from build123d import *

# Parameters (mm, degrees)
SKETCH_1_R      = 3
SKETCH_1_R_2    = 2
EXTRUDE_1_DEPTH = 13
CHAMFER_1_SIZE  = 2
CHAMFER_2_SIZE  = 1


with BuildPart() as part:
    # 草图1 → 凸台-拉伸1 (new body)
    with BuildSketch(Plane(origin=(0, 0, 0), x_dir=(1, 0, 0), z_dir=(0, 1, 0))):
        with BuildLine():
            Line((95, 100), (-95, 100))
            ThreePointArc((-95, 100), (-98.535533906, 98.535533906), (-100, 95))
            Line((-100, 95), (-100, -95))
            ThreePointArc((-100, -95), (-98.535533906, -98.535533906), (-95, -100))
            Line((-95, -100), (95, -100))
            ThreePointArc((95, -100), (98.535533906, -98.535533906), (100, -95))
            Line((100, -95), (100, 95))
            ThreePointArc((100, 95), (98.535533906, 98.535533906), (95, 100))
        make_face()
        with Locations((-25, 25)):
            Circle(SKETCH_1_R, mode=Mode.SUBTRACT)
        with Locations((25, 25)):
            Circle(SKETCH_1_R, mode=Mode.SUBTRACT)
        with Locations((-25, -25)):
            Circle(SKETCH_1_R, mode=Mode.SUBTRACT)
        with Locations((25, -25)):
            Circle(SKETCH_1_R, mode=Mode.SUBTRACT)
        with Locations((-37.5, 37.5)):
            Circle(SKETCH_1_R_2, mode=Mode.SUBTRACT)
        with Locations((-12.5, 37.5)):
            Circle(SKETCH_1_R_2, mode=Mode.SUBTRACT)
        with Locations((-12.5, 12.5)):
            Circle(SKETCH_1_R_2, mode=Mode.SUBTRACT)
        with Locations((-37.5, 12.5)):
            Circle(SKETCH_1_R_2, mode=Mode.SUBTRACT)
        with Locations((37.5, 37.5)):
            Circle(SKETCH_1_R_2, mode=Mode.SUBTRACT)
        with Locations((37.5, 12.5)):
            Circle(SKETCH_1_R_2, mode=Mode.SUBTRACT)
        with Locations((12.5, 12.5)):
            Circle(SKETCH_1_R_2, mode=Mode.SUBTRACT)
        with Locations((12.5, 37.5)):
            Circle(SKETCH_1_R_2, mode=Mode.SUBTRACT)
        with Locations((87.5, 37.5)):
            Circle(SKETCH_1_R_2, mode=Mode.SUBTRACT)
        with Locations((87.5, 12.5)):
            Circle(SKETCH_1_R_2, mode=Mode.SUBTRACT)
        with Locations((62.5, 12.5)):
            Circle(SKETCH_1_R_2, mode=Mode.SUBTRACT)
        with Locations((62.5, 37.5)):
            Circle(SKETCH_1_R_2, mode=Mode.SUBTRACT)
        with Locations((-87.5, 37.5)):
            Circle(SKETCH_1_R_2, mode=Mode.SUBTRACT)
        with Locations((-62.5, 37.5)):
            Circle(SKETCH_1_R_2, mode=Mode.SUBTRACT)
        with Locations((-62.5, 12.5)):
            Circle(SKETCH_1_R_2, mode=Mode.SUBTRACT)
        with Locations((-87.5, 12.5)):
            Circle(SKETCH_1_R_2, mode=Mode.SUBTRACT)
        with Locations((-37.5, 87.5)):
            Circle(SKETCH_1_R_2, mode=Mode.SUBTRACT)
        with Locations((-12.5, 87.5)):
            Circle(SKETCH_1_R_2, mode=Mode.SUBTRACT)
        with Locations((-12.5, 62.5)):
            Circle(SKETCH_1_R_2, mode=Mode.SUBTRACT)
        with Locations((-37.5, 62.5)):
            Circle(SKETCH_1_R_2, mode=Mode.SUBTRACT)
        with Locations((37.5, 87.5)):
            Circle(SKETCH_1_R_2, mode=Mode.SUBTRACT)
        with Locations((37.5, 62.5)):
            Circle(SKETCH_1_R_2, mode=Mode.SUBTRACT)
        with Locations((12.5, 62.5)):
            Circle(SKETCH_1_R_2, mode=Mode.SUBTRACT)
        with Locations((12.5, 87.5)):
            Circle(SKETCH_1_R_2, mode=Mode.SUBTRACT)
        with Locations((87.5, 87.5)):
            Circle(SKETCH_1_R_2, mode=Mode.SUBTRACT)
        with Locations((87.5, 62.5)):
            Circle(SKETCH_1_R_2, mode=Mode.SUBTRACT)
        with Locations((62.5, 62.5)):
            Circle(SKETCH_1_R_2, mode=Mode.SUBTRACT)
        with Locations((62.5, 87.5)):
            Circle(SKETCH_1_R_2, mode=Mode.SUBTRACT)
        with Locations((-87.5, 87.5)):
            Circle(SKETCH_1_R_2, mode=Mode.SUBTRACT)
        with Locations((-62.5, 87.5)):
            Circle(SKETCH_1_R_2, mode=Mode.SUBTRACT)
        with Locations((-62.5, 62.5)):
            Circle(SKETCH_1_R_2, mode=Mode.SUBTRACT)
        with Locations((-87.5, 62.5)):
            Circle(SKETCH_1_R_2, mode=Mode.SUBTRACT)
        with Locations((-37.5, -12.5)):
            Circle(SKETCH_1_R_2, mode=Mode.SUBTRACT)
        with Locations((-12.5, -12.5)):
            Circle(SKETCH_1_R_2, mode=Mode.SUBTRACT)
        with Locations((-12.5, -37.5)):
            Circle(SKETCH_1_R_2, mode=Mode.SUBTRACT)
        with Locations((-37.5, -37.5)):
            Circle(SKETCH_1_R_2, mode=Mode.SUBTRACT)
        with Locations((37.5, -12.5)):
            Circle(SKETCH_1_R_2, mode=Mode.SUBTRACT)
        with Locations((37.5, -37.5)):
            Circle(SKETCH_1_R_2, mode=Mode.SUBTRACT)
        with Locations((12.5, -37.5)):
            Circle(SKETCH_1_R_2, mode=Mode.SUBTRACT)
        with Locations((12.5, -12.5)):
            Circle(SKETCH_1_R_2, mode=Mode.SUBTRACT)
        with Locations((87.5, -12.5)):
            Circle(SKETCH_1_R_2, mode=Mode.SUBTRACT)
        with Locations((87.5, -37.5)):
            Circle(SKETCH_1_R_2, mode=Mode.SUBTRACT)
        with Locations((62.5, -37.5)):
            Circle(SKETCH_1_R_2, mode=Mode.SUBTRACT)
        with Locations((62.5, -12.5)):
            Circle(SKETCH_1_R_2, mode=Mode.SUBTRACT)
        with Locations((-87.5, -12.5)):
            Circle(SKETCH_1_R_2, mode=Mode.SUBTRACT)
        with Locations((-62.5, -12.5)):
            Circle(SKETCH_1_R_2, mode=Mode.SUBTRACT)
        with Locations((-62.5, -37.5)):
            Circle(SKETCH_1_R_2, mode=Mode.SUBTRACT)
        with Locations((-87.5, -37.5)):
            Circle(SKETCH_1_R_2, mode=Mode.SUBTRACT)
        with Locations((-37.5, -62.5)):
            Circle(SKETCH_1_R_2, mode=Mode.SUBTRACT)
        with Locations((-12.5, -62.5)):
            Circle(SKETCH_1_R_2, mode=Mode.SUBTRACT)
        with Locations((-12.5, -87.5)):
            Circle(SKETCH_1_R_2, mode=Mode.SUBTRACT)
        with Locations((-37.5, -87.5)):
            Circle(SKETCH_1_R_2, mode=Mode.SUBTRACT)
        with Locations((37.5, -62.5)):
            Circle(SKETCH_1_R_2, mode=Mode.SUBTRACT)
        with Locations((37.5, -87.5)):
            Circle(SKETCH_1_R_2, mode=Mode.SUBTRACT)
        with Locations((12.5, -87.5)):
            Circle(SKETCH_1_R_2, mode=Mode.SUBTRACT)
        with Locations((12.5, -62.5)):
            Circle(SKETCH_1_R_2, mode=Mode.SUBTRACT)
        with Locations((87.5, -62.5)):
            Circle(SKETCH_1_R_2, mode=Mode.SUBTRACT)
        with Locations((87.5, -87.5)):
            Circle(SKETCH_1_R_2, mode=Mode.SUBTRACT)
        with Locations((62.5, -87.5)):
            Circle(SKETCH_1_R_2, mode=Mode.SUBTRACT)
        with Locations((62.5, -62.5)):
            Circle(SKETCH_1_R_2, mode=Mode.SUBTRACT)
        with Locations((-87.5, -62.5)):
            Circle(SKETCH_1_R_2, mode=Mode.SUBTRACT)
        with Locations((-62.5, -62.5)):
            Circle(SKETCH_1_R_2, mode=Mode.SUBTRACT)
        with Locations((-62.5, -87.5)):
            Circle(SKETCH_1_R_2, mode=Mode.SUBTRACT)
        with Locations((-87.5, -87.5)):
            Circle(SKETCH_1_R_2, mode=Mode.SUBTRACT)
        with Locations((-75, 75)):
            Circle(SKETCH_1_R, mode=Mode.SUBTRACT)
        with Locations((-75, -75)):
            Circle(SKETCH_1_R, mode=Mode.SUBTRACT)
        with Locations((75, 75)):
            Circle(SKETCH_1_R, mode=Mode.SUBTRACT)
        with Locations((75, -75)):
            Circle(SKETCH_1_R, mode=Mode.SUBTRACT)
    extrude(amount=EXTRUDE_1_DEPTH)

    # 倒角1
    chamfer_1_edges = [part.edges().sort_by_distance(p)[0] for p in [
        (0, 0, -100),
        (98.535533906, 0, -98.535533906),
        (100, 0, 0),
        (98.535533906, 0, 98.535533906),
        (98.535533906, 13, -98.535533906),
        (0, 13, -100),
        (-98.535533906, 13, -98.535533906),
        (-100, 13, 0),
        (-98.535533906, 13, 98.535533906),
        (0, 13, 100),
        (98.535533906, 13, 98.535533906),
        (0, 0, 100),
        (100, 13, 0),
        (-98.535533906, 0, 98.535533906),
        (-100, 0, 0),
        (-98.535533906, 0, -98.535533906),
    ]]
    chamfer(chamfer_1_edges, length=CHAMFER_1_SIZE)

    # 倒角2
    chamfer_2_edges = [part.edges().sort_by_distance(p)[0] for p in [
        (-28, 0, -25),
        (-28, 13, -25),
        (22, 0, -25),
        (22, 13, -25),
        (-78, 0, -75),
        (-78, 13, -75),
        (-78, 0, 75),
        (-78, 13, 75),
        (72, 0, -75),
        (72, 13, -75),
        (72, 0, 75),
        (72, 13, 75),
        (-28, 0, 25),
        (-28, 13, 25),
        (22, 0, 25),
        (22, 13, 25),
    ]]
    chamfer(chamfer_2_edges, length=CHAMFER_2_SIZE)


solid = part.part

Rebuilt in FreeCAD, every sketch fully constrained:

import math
import FreeCAD as App
import Part
import Sketcher


def edges_at(feature, points):
    """Names of the edges that pass closest to the given points."""
    edges = feature.Shape.Edges
    near = lambda p: min(range(len(edges)), key=lambda i: edges[i].distToShape(Part.Vertex(*p))[0])
    return sorted({f"Edge{near(p) + 1}" for p in points})

doc = App.newDocument("Part")
body = doc.addObject("PartDesign::Body", "Body")

# Sketch on XZ plane
sketch1 = body.newObject("Sketcher::SketchObject", "Sketch")
sketch1.AttachmentSupport = (doc.getObject("XZ_Plane"), [""])
sketch1.MapMode = "FlatFace"
sketch1.addGeometry([
    Part.LineSegment(App.Vector(95, -100, 0), App.Vector(-95, -100, 0)),  # 0
    Part.ArcOfCircle(Part.Circle(App.Vector(-95, -95, 0), App.Vector(0, 0, 1), 5), math.radians(180), math.radians(270)),  # 1
    Part.LineSegment(App.Vector(-100, -95, 0), App.Vector(-100, 95, 0)),  # 2
    Part.ArcOfCircle(Part.Circle(App.Vector(-95, 95, 0), App.Vector(0, 0, 1), 5), math.radians(90), math.radians(180)),  # 3
    Part.LineSegment(App.Vector(-95, 100, 0), App.Vector(95, 100, 0)),  # 4
    Part.ArcOfCircle(Part.Circle(App.Vector(95, 95, 0), App.Vector(0, 0, 1), 5), math.radians(0), math.radians(90)),  # 5
    Part.LineSegment(App.Vector(100, 95, 0), App.Vector(100, -95, 0)),  # 6
    Part.ArcOfCircle(Part.Circle(App.Vector(95, -95, 0), App.Vector(0, 0, 1), 5), math.radians(-90), math.radians(0)),  # 7
    Part.Circle(App.Vector(-87.5, 87.5, 0), App.Vector(0, 0, 1), 2),  # 8
    Part.Circle(App.Vector(-75, 75, 0), App.Vector(0, 0, 1), 3),  # 9
    Part.Circle(App.Vector(-62.5, 87.5, 0), App.Vector(0, 0, 1), 2),  # 10
    Part.Circle(App.Vector(-87.5, 62.5, 0), App.Vector(0, 0, 1), 2),  # 11
    Part.Circle(App.Vector(-62.5, 62.5, 0), App.Vector(0, 0, 1), 2),  # 12
    Part.Circle(App.Vector(-37.5, 87.5, 0), App.Vector(0, 0, 1), 2),  # 13
    Part.Circle(App.Vector(-12.5, 87.5, 0), App.Vector(0, 0, 1), 2),  # 14
    Part.Circle(App.Vector(-37.5, 62.5, 0), App.Vector(0, 0, 1), 2),  # 15
    Part.Circle(App.Vector(-12.5, 62.5, 0), App.Vector(0, 0, 1), 2),  # 16
    Part.Circle(App.Vector(-87.5, 37.5, 0), App.Vector(0, 0, 1), 2),  # 17
    Part.Circle(App.Vector(-62.5, 37.5, 0), App.Vector(0, 0, 1), 2),  # 18
    Part.Circle(App.Vector(-87.5, 12.5, 0), App.Vector(0, 0, 1), 2),  # 19
    Part.Circle(App.Vector(-62.5, 12.5, 0), App.Vector(0, 0, 1), 2),  # 20
    Part.Circle(App.Vector(-37.5, 37.5, 0), App.Vector(0, 0, 1), 2),  # 21
    Part.Circle(App.Vector(-25, 25, 0), App.Vector(0, 0, 1), 3),  # 22
    Part.Circle(App.Vector(-12.5, 37.5, 0), App.Vector(0, 0, 1), 2),  # 23
    Part.Circle(App.Vector(-37.5, 12.5, 0), App.Vector(0, 0, 1), 2),  # 24
    Part.Circle(App.Vector(-12.5, 12.5, 0), App.Vector(0, 0, 1), 2),  # 25
    Part.Circle(App.Vector(12.5, 87.5, 0), App.Vector(0, 0, 1), 2),  # 26
    Part.Circle(App.Vector(37.5, 87.5, 0), App.Vector(0, 0, 1), 2),  # 27
    Part.Circle(App.Vector(12.5, 62.5, 0), App.Vector(0, 0, 1), 2),  # 28
    Part.Circle(App.Vector(37.5, 62.5, 0), App.Vector(0, 0, 1), 2),  # 29
    Part.Circle(App.Vector(62.5, 87.5, 0), App.Vector(0, 0, 1), 2),  # 30
    Part.Circle(App.Vector(87.5, 87.5, 0), App.Vector(0, 0, 1), 2),  # 31
    Part.Circle(App.Vector(75, 75, 0), App.Vector(0, 0, 1), 3),  # 32
    Part.Circle(App.Vector(62.5, 62.5, 0), App.Vector(0, 0, 1), 2),  # 33
    Part.Circle(App.Vector(87.5, 62.5, 0), App.Vector(0, 0, 1), 2),  # 34
    Part.Circle(App.Vector(12.5, 37.5, 0), App.Vector(0, 0, 1), 2),  # 35
    Part.Circle(App.Vector(37.5, 37.5, 0), App.Vector(0, 0, 1), 2),  # 36
    Part.Circle(App.Vector(25, 25, 0), App.Vector(0, 0, 1), 3),  # 37
    Part.Circle(App.Vector(12.5, 12.5, 0), App.Vector(0, 0, 1), 2),  # 38
    Part.Circle(App.Vector(37.5, 12.5, 0), App.Vector(0, 0, 1), 2),  # 39
    Part.Circle(App.Vector(62.5, 37.5, 0), App.Vector(0, 0, 1), 2),  # 40
    Part.Circle(App.Vector(87.5, 37.5, 0), App.Vector(0, 0, 1), 2),  # 41
    Part.Circle(App.Vector(62.5, 12.5, 0), App.Vector(0, 0, 1), 2),  # 42
    Part.Circle(App.Vector(87.5, 12.5, 0), App.Vector(0, 0, 1), 2),  # 43
    Part.Circle(App.Vector(-87.5, -12.5, 0), App.Vector(0, 0, 1), 2),  # 44
    Part.Circle(App.Vector(-62.5, -12.5, 0), App.Vector(0, 0, 1), 2),  # 45
    Part.Circle(App.Vector(-87.5, -37.5, 0), App.Vector(0, 0, 1), 2),  # 46
    Part.Circle(App.Vector(-62.5, -37.5, 0), App.Vector(0, 0, 1), 2),  # 47
    Part.Circle(App.Vector(-37.5, -12.5, 0), App.Vector(0, 0, 1), 2),  # 48
    Part.Circle(App.Vector(-12.5, -12.5, 0), App.Vector(0, 0, 1), 2),  # 49
    Part.Circle(App.Vector(-25, -25, 0), App.Vector(0, 0, 1), 3),  # 50
    Part.Circle(App.Vector(-37.5, -37.5, 0), App.Vector(0, 0, 1), 2),  # 51
    Part.Circle(App.Vector(-12.5, -37.5, 0), App.Vector(0, 0, 1), 2),  # 52
    Part.Circle(App.Vector(-87.5, -62.5, 0), App.Vector(0, 0, 1), 2),  # 53
    Part.Circle(App.Vector(-62.5, -62.5, 0), App.Vector(0, 0, 1), 2),  # 54
    Part.Circle(App.Vector(-75, -75, 0), App.Vector(0, 0, 1), 3),  # 55
    Part.Circle(App.Vector(-87.5, -87.5, 0), App.Vector(0, 0, 1), 2),  # 56
    Part.Circle(App.Vector(-62.5, -87.5, 0), App.Vector(0, 0, 1), 2),  # 57
    Part.Circle(App.Vector(-37.5, -62.5, 0), App.Vector(0, 0, 1), 2),  # 58
    Part.Circle(App.Vector(-12.5, -62.5, 0), App.Vector(0, 0, 1), 2),  # 59
    Part.Circle(App.Vector(-37.5, -87.5, 0), App.Vector(0, 0, 1), 2),  # 60
    Part.Circle(App.Vector(-12.5, -87.5, 0), App.Vector(0, 0, 1), 2),  # 61
    Part.Circle(App.Vector(12.5, -12.5, 0), App.Vector(0, 0, 1), 2),  # 62
    Part.Circle(App.Vector(37.5, -12.5, 0), App.Vector(0, 0, 1), 2),  # 63
    Part.Circle(App.Vector(12.5, -37.5, 0), App.Vector(0, 0, 1), 2),  # 64
    Part.Circle(App.Vector(25, -25, 0), App.Vector(0, 0, 1), 3),  # 65
    Part.Circle(App.Vector(37.5, -37.5, 0), App.Vector(0, 0, 1), 2),  # 66
    Part.Circle(App.Vector(62.5, -12.5, 0), App.Vector(0, 0, 1), 2),  # 67
    Part.Circle(App.Vector(87.5, -12.5, 0), App.Vector(0, 0, 1), 2),  # 68
    Part.Circle(App.Vector(62.5, -37.5, 0), App.Vector(0, 0, 1), 2),  # 69
    Part.Circle(App.Vector(87.5, -37.5, 0), App.Vector(0, 0, 1), 2),  # 70
    Part.Circle(App.Vector(12.5, -62.5, 0), App.Vector(0, 0, 1), 2),  # 71
    Part.Circle(App.Vector(37.5, -62.5, 0), App.Vector(0, 0, 1), 2),  # 72
    Part.Circle(App.Vector(12.5, -87.5, 0), App.Vector(0, 0, 1), 2),  # 73
    Part.Circle(App.Vector(37.5, -87.5, 0), App.Vector(0, 0, 1), 2),  # 74
    Part.Circle(App.Vector(62.5, -62.5, 0), App.Vector(0, 0, 1), 2),  # 75
    Part.Circle(App.Vector(87.5, -62.5, 0), App.Vector(0, 0, 1), 2),  # 76
    Part.Circle(App.Vector(62.5, -87.5, 0), App.Vector(0, 0, 1), 2),  # 77
    Part.Circle(App.Vector(75, -75, 0), App.Vector(0, 0, 1), 3),  # 78
    Part.Circle(App.Vector(87.5, -87.5, 0), App.Vector(0, 0, 1), 2),  # 79
], False)
sketch1.addConstraint([
    Sketcher.Constraint("Tangent", 0, 2, 1, 2),
    Sketcher.Constraint("Tangent", 1, 1, 2, 1),
    Sketcher.Constraint("Tangent", 2, 2, 3, 2),
    Sketcher.Constraint("Tangent", 3, 1, 4, 1),
    Sketcher.Constraint("Tangent", 4, 2, 5, 2),
    Sketcher.Constraint("Tangent", 5, 1, 6, 1),
    Sketcher.Constraint("Tangent", 6, 2, 7, 2),
    Sketcher.Constraint("Tangent", 7, 1, 0, 1),
    Sketcher.Constraint("Horizontal", 0),
    Sketcher.Constraint("Vertical", 2),
    Sketcher.Constraint("Horizontal", 4),
    Sketcher.Constraint("Vertical", 6),
    Sketcher.Constraint("Equal", 1, 3),
    Sketcher.Constraint("Equal", 3, 5),
    Sketcher.Constraint("Equal", 5, 7),
    Sketcher.Constraint("Equal", 8, 10),
    Sketcher.Constraint("Equal", 10, 11),
    Sketcher.Constraint("Equal", 11, 12),
    Sketcher.Constraint("Equal", 12, 13),
    Sketcher.Constraint("Equal", 13, 14),
    Sketcher.Constraint("Equal", 14, 15),
    Sketcher.Constraint("Equal", 15, 16),
    Sketcher.Constraint("Equal", 16, 17),
    Sketcher.Constraint("Equal", 17, 18),
    Sketcher.Constraint("Equal", 18, 19),
    Sketcher.Constraint("Equal", 19, 20),
    Sketcher.Constraint("Equal", 20, 21),
    Sketcher.Constraint("Equal", 9, 22),
    Sketcher.Constraint("Equal", 21, 23),
    Sketcher.Constraint("Equal", 23, 24),
    Sketcher.Constraint("Equal", 24, 25),
    Sketcher.Constraint("Equal", 25, 26),
    Sketcher.Constraint("Equal", 26, 27),
    Sketcher.Constraint("Equal", 27, 28),
    Sketcher.Constraint("Equal", 28, 29),
    Sketcher.Constraint("Equal", 29, 30),
    Sketcher.Constraint("Equal", 30, 31),
    Sketcher.Constraint("Equal", 22, 32),
    Sketcher.Constraint("Equal", 31, 33),
    Sketcher.Constraint("Equal", 33, 34),
    Sketcher.Constraint("Equal", 34, 35),
    Sketcher.Constraint("Equal", 35, 36),
    Sketcher.Constraint("Equal", 32, 37),
    Sketcher.Constraint("Equal", 36, 38),
    Sketcher.Constraint("Equal", 38, 39),
    Sketcher.Constraint("Equal", 39, 40),
    Sketcher.Constraint("Equal", 40, 41),
    Sketcher.Constraint("Equal", 41, 42),
    Sketcher.Constraint("Equal", 42, 43),
    Sketcher.Constraint("Equal", 43, 44),
    Sketcher.Constraint("Equal", 44, 45),
    Sketcher.Constraint("Equal", 45, 46),
    Sketcher.Constraint("Equal", 46, 47),
    Sketcher.Constraint("Equal", 47, 48),
    Sketcher.Constraint("Equal", 48, 49),
    Sketcher.Constraint("Equal", 37, 50),
    Sketcher.Constraint("Equal", 49, 51),
    Sketcher.Constraint("Equal", 51, 52),
    Sketcher.Constraint("Equal", 52, 53),
    Sketcher.Constraint("Equal", 53, 54),
    Sketcher.Constraint("Equal", 50, 55),
    Sketcher.Constraint("Equal", 54, 56),
    Sketcher.Constraint("Equal", 56, 57),
    Sketcher.Constraint("Equal", 57, 58),
    Sketcher.Constraint("Equal", 58, 59),
    Sketcher.Constraint("Equal", 59, 60),
    Sketcher.Constraint("Equal", 60, 61),
    Sketcher.Constraint("Equal", 61, 62),
    Sketcher.Constraint("Equal", 62, 63),
    Sketcher.Constraint("Equal", 63, 64),
    Sketcher.Constraint("Equal", 55, 65),
    Sketcher.Constraint("Equal", 64, 66),
    Sketcher.Constraint("Equal", 66, 67),
    Sketcher.Constraint("Equal", 67, 68),
    Sketcher.Constraint("Equal", 68, 69),
    Sketcher.Constraint("Equal", 69, 70),
    Sketcher.Constraint("Equal", 70, 71),
    Sketcher.Constraint("Equal", 71, 72),
    Sketcher.Constraint("Equal", 72, 73),
    Sketcher.Constraint("Equal", 73, 74),
    Sketcher.Constraint("Equal", 74, 75),
    Sketcher.Constraint("Equal", 75, 76),
    Sketcher.Constraint("Equal", 76, 77),
    Sketcher.Constraint("Equal", 65, 78),
    Sketcher.Constraint("Equal", 77, 79),
    Sketcher.Constraint("Symmetric", 1, 3, 5, 3, -1, 1),
    Sketcher.Constraint("Symmetric", 43, 3, 44, 3, -1, 1),
    Sketcher.Constraint("Symmetric", 42, 3, 45, 3, -1, 1),
    Sketcher.Constraint("Symmetric", 41, 3, 46, 3, -1, 1),
    Sketcher.Constraint("Symmetric", 40, 3, 47, 3, -1, 1),
    Sketcher.Constraint("Symmetric", 39, 3, 48, 3, -1, 1),
    Sketcher.Constraint("Symmetric", 38, 3, 49, 3, -1, 1),
    Sketcher.Constraint("Symmetric", 37, 3, 50, 3, -1, 1),
    Sketcher.Constraint("Symmetric", 36, 3, 51, 3, -1, 1),
    Sketcher.Constraint("Symmetric", 35, 3, 52, 3, -1, 1),
    Sketcher.Constraint("Symmetric", 34, 3, 53, 3, -1, 1),
    Sketcher.Constraint("Symmetric", 33, 3, 54, 3, -1, 1),
    Sketcher.Constraint("Symmetric", 32, 3, 55, 3, -1, 1),
    Sketcher.Constraint("Symmetric", 31, 3, 56, 3, -1, 1),
    Sketcher.Constraint("Symmetric", 30, 3, 57, 3, -1, 1),
    Sketcher.Constraint("Symmetric", 29, 3, 58, 3, -1, 1),
    Sketcher.Constraint("Symmetric", 28, 3, 59, 3, -1, 1),
    Sketcher.Constraint("Symmetric", 27, 3, 60, 3, -1, 1),
    Sketcher.Constraint("Symmetric", 26, 3, 61, 3, -1, 1),
    Sketcher.Constraint("Symmetric", 25, 3, 62, 3, -1, 1),
    Sketcher.Constraint("Symmetric", 24, 3, 63, 3, -1, 1),
    Sketcher.Constraint("Symmetric", 23, 3, 64, 3, -1, 1),
    Sketcher.Constraint("Symmetric", 22, 3, 65, 3, -1, 1),
    Sketcher.Constraint("Symmetric", 21, 3, 66, 3, -1, 1),
    Sketcher.Constraint("Symmetric", 20, 3, 67, 3, -1, 1),
    Sketcher.Constraint("Symmetric", 19, 3, 68, 3, -1, 1),
    Sketcher.Constraint("Symmetric", 18, 3, 69, 3, -1, 1),
    Sketcher.Constraint("Symmetric", 17, 3, 70, 3, -1, 1),
    Sketcher.Constraint("Symmetric", 16, 3, 71, 3, -1, 1),
    Sketcher.Constraint("Symmetric", 15, 3, 72, 3, -1, 1),
    Sketcher.Constraint("Symmetric", 14, 3, 73, 3, -1, 1),
    Sketcher.Constraint("Symmetric", 13, 3, 74, 3, -1, 1),
    Sketcher.Constraint("Symmetric", 12, 3, 75, 3, -1, 1),
    Sketcher.Constraint("Symmetric", 11, 3, 76, 3, -1, 1),
    Sketcher.Constraint("Symmetric", 10, 3, 77, 3, -1, 1),
    Sketcher.Constraint("Symmetric", 9, 3, 78, 3, -1, 1),
    Sketcher.Constraint("Symmetric", 8, 3, 79, 3, -1, 1),
    Sketcher.Constraint("Symmetric", 14, 3, 26, 3, -2),
    Sketcher.Constraint("Symmetric", 13, 3, 27, 3, -2),
    Sketcher.Constraint("Symmetric", 16, 3, 28, 3, -2),
    Sketcher.Constraint("Symmetric", 15, 3, 29, 3, -2),
    Sketcher.Constraint("Symmetric", 10, 3, 30, 3, -2),
    Sketcher.Constraint("Symmetric", 8, 3, 31, 3, -2),
    Sketcher.Constraint("Symmetric", 9, 3, 32, 3, -2),
    Sketcher.Constraint("Symmetric", 12, 3, 33, 3, -2),
    Sketcher.Constraint("Symmetric", 11, 3, 34, 3, -2),
    Sketcher.Constraint("Symmetric", 23, 3, 35, 3, -2),
    Sketcher.Constraint("Symmetric", 21, 3, 36, 3, -2),
    Sketcher.Constraint("Symmetric", 22, 3, 37, 3, -2),
    Sketcher.Constraint("Symmetric", 25, 3, 38, 3, -2),
    Sketcher.Constraint("Symmetric", 24, 3, 39, 3, -2),
    Sketcher.Constraint("Symmetric", 18, 3, 40, 3, -2),
    Sketcher.Constraint("Symmetric", 17, 3, 41, 3, -2),
    Sketcher.Constraint("Symmetric", 20, 3, 42, 3, -2),
    Sketcher.Constraint("Symmetric", 19, 3, 43, 3, -2),
    Sketcher.Constraint("Horizontal", 8, 3, 10, 3),
    Sketcher.Constraint("Horizontal", 11, 3, 12, 3),
    Sketcher.Constraint("Horizontal", 10, 3, 13, 3),
    Sketcher.Constraint("Horizontal", 13, 3, 14, 3),
    Sketcher.Constraint("Horizontal", 12, 3, 15, 3),
    Sketcher.Constraint("Horizontal", 15, 3, 16, 3),
    Sketcher.Constraint("Horizontal", 17, 3, 18, 3),
    Sketcher.Constraint("Horizontal", 19, 3, 20, 3),
    Sketcher.Constraint("Horizontal", 18, 3, 21, 3),
    Sketcher.Constraint("Horizontal", 21, 3, 23, 3),
    Sketcher.Constraint("Horizontal", 20, 3, 24, 3),
    Sketcher.Constraint("Horizontal", 24, 3, 25, 3),
    Sketcher.Constraint("Vertical", 8, 3, 11, 3),
    Sketcher.Constraint("Vertical", 10, 3, 12, 3),
    Sketcher.Constraint("Vertical", 13, 3, 15, 3),
    Sketcher.Constraint("Vertical", 14, 3, 16, 3),
    Sketcher.Constraint("Vertical", 11, 3, 17, 3),
    Sketcher.Constraint("Vertical", 12, 3, 18, 3),
    Sketcher.Constraint("Vertical", 17, 3, 19, 3),
    Sketcher.Constraint("Vertical", 18, 3, 20, 3),
    Sketcher.Constraint("Vertical", 15, 3, 21, 3),
    Sketcher.Constraint("Vertical", 16, 3, 23, 3),
    Sketcher.Constraint("Vertical", 21, 3, 24, 3),
    Sketcher.Constraint("Vertical", 23, 3, 25, 3),
    Sketcher.Constraint("Equal", 4, 2),
    Sketcher.Constraint("Diameter", 8, 4.0),
    Sketcher.Constraint("Diameter", 9, 6.0),
    Sketcher.Constraint("Radius", 1, 5.0),
    Sketcher.Constraint("DistanceX", 0, 2, 0, 1, 190.0),
    Sketcher.Constraint("DistanceX", 9, 3, -1, 1, 75.0),
    Sketcher.Constraint("DistanceY", -1, 1, 9, 3, 75.0),
    Sketcher.Constraint("DistanceX", 22, 3, -1, 1, 25.0),
    Sketcher.Constraint("DistanceY", -1, 1, 22, 3, 25.0),
    Sketcher.Constraint("DistanceX", 8, 3, -1, 1, 87.5),
    Sketcher.Constraint("DistanceY", -1, 1, 8, 3, 87.5),
    Sketcher.Constraint("DistanceX", 10, 3, -1, 1, 62.5),
    Sketcher.Constraint("DistanceY", -1, 1, 11, 3, 62.5),
    Sketcher.Constraint("DistanceX", 13, 3, -1, 1, 37.5),
    Sketcher.Constraint("DistanceX", 14, 3, -1, 1, 12.5),
    Sketcher.Constraint("DistanceY", -1, 1, 17, 3, 37.5),
    Sketcher.Constraint("DistanceY", -1, 1, 19, 3, 12.5),
])
pad1 = body.newObject("PartDesign::Pad", "Pad")
pad1.Profile = sketch1
pad1.Length = 13
pad1.Reversed = True
doc.recompute()

chamfer = body.newObject("PartDesign::Chamfer", "Chamfer")
chamfer.Base = (pad1, edges_at(pad1, [
    (0, 0, -100),
    (98.536, 0, -98.536),
    (100, 0, 0),
    (98.536, 0, 98.536),
    (98.536, 13, -98.536),
    (0, 13, -100),
    (-98.536, 13, -98.536),
    (-100, 13, 0),
    (-98.536, 13, 98.536),
    (0, 13, 100),
    (98.536, 13, 98.536),
    (0, 0, 100),
    (100, 13, 0),
    (-98.536, 0, 98.536),
    (-100, 0, 0),
    (-98.536, 0, -98.536),
]))
chamfer.Size = 2
doc.recompute()

chamfer2 = body.newObject("PartDesign::Chamfer", "Chamfer001")
chamfer2.Base = (chamfer, edges_at(chamfer, [
    (-28, 0, -25),
    (-28, 13, -25),
    (22, 0, -25),
    (22, 13, -25),
    (-78, 0, -75),
    (-78, 13, -75),
    (-78, 0, 75),
    (-78, 13, 75),
    (72, 0, -75),
    (72, 13, -75),
    (72, 0, 75),
    (72, 13, 75),
    (-28, 0, 25),
    (-28, 13, 25),
    (22, 0, 25),
    (22, 13, 25),
]))
chamfer2.Size = 1

doc.recompute()
